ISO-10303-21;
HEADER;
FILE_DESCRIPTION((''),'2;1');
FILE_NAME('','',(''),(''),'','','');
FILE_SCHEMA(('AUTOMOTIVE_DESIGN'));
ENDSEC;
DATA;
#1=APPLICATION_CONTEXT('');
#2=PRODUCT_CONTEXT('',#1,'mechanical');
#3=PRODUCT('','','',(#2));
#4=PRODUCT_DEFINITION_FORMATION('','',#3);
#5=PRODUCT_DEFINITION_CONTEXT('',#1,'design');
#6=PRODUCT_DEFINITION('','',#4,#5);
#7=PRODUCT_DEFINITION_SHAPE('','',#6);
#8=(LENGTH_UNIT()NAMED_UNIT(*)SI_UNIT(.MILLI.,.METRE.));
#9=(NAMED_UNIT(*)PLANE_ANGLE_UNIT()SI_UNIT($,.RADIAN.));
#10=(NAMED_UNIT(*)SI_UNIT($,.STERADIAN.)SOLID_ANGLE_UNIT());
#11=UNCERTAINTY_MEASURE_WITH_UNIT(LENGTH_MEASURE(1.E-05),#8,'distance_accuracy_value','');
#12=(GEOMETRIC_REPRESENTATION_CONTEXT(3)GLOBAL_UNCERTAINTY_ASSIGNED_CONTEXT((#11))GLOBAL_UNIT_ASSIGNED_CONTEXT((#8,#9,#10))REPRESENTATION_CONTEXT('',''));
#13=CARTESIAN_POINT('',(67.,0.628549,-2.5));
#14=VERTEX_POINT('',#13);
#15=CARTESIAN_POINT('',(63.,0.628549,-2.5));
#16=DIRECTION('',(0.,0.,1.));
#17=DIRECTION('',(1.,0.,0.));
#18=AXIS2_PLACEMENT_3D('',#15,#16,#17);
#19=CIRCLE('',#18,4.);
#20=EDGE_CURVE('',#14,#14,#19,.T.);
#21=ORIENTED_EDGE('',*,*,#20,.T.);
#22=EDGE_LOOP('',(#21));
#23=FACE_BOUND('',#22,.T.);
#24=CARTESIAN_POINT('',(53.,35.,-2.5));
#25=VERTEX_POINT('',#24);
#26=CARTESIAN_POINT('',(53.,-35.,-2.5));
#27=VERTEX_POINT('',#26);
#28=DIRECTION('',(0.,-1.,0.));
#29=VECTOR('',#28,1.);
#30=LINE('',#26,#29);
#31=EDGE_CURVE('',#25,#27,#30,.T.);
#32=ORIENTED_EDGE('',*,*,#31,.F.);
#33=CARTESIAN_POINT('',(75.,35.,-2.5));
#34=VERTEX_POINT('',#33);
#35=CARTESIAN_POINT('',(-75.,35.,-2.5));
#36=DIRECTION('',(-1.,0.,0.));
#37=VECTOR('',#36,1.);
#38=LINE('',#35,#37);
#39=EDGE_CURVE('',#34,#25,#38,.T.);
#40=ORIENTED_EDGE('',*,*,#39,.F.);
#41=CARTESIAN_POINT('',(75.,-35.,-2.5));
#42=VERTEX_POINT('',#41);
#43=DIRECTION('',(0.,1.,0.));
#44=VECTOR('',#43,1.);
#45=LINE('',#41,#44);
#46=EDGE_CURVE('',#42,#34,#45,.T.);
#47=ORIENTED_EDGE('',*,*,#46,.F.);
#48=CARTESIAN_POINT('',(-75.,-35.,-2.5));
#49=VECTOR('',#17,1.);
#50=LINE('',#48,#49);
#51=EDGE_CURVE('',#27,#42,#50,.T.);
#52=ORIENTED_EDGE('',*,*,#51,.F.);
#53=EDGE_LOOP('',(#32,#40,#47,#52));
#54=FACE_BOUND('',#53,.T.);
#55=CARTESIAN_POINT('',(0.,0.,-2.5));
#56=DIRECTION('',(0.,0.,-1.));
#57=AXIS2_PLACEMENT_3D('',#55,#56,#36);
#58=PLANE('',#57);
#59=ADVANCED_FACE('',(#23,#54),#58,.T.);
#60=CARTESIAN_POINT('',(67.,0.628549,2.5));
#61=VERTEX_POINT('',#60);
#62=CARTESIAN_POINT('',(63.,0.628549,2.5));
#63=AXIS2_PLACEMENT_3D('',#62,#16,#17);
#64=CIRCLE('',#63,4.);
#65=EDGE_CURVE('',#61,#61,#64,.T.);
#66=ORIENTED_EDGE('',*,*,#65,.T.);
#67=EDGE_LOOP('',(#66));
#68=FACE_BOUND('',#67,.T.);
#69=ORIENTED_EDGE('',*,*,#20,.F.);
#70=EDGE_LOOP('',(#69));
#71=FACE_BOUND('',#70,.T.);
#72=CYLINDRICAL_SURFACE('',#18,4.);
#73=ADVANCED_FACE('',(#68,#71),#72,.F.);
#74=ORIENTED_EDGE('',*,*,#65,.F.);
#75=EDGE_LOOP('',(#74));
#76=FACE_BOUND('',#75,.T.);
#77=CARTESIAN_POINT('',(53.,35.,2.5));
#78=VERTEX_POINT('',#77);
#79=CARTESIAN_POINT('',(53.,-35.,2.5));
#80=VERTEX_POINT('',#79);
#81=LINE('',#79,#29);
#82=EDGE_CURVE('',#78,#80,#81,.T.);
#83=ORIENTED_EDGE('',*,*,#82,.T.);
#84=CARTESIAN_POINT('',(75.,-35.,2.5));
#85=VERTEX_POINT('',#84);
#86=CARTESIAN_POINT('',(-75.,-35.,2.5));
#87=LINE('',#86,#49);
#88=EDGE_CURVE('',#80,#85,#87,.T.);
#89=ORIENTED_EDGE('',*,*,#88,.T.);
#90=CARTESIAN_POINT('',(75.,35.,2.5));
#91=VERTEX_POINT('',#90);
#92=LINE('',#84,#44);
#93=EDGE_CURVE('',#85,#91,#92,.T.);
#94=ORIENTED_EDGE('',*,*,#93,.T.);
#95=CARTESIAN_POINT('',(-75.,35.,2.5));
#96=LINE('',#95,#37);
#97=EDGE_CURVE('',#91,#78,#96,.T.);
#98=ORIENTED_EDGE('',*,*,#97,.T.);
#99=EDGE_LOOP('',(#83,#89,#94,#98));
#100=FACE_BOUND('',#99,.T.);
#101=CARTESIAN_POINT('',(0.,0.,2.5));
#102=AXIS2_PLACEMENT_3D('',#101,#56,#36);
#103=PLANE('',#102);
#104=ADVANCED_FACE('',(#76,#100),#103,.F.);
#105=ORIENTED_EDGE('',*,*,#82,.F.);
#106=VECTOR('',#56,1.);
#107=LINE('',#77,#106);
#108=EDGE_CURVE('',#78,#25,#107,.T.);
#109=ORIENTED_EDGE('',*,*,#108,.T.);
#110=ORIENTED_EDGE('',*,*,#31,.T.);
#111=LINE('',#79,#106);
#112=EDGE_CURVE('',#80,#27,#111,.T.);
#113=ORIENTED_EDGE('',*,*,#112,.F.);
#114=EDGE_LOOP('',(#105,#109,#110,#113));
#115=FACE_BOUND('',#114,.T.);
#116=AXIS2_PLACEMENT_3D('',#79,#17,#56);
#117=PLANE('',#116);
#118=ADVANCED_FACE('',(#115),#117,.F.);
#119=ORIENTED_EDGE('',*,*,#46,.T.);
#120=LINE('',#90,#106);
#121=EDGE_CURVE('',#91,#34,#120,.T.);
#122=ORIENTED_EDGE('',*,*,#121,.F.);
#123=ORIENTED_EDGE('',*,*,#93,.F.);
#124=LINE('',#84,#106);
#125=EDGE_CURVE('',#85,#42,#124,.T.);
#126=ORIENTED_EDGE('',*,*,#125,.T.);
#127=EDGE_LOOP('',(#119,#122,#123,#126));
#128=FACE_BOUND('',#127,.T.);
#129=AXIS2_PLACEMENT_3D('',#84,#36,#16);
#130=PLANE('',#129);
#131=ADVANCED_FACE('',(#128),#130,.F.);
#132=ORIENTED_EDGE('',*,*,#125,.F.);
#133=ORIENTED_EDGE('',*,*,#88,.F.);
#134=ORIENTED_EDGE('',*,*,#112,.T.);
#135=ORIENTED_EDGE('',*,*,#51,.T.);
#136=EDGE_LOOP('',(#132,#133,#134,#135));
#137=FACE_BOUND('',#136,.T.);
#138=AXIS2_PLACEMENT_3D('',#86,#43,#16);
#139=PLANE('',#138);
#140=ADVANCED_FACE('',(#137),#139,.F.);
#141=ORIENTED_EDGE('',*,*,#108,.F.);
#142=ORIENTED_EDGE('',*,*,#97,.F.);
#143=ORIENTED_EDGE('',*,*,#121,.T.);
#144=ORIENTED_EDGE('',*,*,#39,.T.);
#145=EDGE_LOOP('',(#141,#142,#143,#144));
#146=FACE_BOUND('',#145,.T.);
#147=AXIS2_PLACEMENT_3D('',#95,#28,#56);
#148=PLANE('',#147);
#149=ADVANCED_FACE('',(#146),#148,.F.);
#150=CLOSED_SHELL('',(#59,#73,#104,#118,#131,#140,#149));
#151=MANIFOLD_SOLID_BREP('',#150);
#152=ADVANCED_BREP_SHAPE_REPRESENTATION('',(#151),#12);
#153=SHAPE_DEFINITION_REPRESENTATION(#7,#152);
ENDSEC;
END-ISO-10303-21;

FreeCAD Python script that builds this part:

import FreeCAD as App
import Part
import Sketcher

doc = App.newDocument("Part")
params = doc.addObject("Spreadsheet::Sheet", "Params")
for row, (alias, value) in enumerate([
    ("sketch1_width", "150 mm"),
    ("sketch1_height", "70 mm"),
    ("pad1_length", "5 mm"),
    ("sketch2_diameter", "8 mm"),
    ("sketch3_width", "120 mm"),
    ("sketch3_height", "70 mm"),
    ("sketch4_width", "8 mm"),
    ("sketch4_height", "70 mm"),
], start=1):
    params.set(f"A{row}", alias)
    params.set(f"B{row}", "=" + value)
    params.setAlias(f"B{row}", alias)

body = doc.addObject("PartDesign::Body", "Body")

# Sketch on XY plane
sketch1 = body.newObject("Sketcher::SketchObject", "Sketch")
sketch1.AttachmentSupport = (doc.getObject("XY_Plane"), [""])
sketch1.MapMode = "FlatFace"
sketch1.addGeometry([
    Part.LineSegment(App.Vector(-75, 35, 0), App.Vector(-75, -35, 0)),
    Part.LineSegment(App.Vector(-75, -35, 0), App.Vector(75, -35, 0)),
    Part.LineSegment(App.Vector(75, -35, 0), App.Vector(75, 35, 0)),
    Part.LineSegment(App.Vector(75, 35, 0), App.Vector(-75, 35, 0)),
], False)
sketch1.addConstraint([
    Sketcher.Constraint("Coincident", 0, 2, 1, 1),
    Sketcher.Constraint("Coincident", 1, 2, 2, 1),
    Sketcher.Constraint("Coincident", 2, 2, 3, 1),
    Sketcher.Constraint("Coincident", 3, 2, 0, 1),
    Sketcher.Constraint("Vertical", 0),
    Sketcher.Constraint("Horizontal", 1),
    Sketcher.Constraint("Vertical", 2),
    Sketcher.Constraint("Horizontal", 3),
    Sketcher.Constraint("Symmetric", 0, 2, 2, 2, -1, 1),
    Sketcher.Constraint("DistanceX", 1, 1, 1, 2, 150.0),
    Sketcher.Constraint("DistanceY", 0, 2, 0, 1, 70.0),
])
sketch1.setExpression("Constraints[9]", "Params.sketch1_width")
sketch1.setExpression("Constraints[10]", "Params.sketch1_height")
pad1 = body.newObject("PartDesign::Pad", "Pad")
pad1.Profile = sketch1
pad1.setExpression("Length", "Params.pad1_length")
pad1.Midplane = True

# Sketch on XY plane
sketch2 = body.newObject("Sketcher::SketchObject", "Sketch001")
sketch2.AttachmentSupport = (doc.getObject("XY_Plane"), [""])
sketch2.MapMode = "FlatFace"
sketch2.AttachmentOffset = App.Placement(App.Vector(0, 0, 2.5), App.Rotation())
sketch2.addGeometry([
    Part.Circle(App.Vector(63, 0.628549, 0), App.Vector(0, 0, 1), 4),
    Part.Circle(App.Vector(29.001496, 0.309584, 0), App.Vector(0, 0, 1), 4),
    Part.Circle(App.Vector(-42.995335, -0.365872, 0), App.Vector(0, 0, 1), 4),
    Part.Circle(App.Vector(-3.997052, 0, 0), App.Vector(0, 0, 1), 4),
], False)
sketch2.addConstraint([
    Sketcher.Constraint("Equal", 0, 1),
    Sketcher.Constraint("Equal", 1, 2),
    Sketcher.Constraint("Equal", 2, 3),
    Sketcher.Constraint("PointOnObject", 3, 3, -1),
    Sketcher.Constraint("Diameter", 0, 8.0),
    Sketcher.Constraint("DistanceX", -1, 1, 0, 3, 63.0),
    Sketcher.Constraint("DistanceY", -1, 1, 0, 3, 0.628549),
    Sketcher.Constraint("DistanceY", 2, 3, -1, 1, 0.365872),
    Sketcher.Constraint("DistanceX", 3, 3, -1, 1, 3.997052),
    Sketcher.Constraint("DistanceX", 2, 3, 1, 3, 71.996832),
    Sketcher.Constraint("DistanceX", -1, 1, 1, 3, 29.001496),
    Sketcher.Constraint("DistanceY", -1, 1, 1, 3, 0.309584),
])
sketch2.setExpression("Constraints[4]", "Params.sketch2_diameter")
pocket1 = body.newObject("PartDesign::Pocket", "Pocket")
pocket1.Profile = sketch2
pocket1.Type = "ThroughAll"

# Sketch on XY plane
sketch3 = body.newObject("Sketcher::SketchObject", "Sketch002")
sketch3.AttachmentSupport = (doc.getObject("XY_Plane"), [""])
sketch3.MapMode = "FlatFace"
sketch3.AttachmentOffset = App.Placement(App.Vector(0, 0, -2.5), App.Rotation())
sketch3.addGeometry([
    Part.LineSegment(App.Vector(45, 35, 0), App.Vector(45, -35, 0)),
    Part.LineSegment(App.Vector(45, -35, 0), App.Vector(-75, -35, 0)),
    Part.LineSegment(App.Vector(-75, -35, 0), App.Vector(-75, 35, 0)),
    Part.LineSegment(App.Vector(-75, 35, 0), App.Vector(45, 35, 0)),
], False)
sketch3.addConstraint([
    Sketcher.Constraint("Coincident", 0, 2, 1, 1),
    Sketcher.Constraint("Coincident", 1, 2, 2, 1),
    Sketcher.Constraint("Coincident", 2, 2, 3, 1),
    Sketcher.Constraint("Coincident", 3, 2, 0, 1),
    Sketcher.Constraint("Vertical", 0),
    Sketcher.Constraint("Horizontal", 1),
    Sketcher.Constraint("Vertical", 2),
    Sketcher.Constraint("Horizontal", 3),
    Sketcher.Constraint("DistanceX", 1, 2, 1, 1, 120.0),
    Sketcher.Constraint("DistanceY", 0, 2, 0, 1, 70.0),
    Sketcher.Constraint("DistanceX", -1, 1, 0, 2, 45.0),
    Sketcher.Constraint("DistanceY", 0, 2, -1, 1, 35.0),
])
sketch3.setExpression("Constraints[8]", "Params.sketch3_width")
sketch3.setExpression("Constraints[9]", "Params.sketch3_height")
pocket2 = body.newObject("PartDesign::Pocket", "Pocket001")
pocket2.Profile = sketch3
pocket2.Type = "ThroughAll"
pocket2.Reversed = True

# Sketch on XY plane
sketch4 = body.newObject("Sketcher::SketchObject", "Sketch003")
sketch4.AttachmentSupport = (doc.getObject("XY_Plane"), [""])
sketch4.MapMode = "FlatFace"
sketch4.AttachmentOffset = App.Placement(App.Vector(0, 0, -2.5), App.Rotation())
sketch4.addGeometry([
    Part.LineSegment(App.Vector(53, 35, 0), App.Vector(53, -35, 0)),
    Part.LineSegment(App.Vector(53, -35, 0), App.Vector(45, -35, 0)),
    Part.LineSegment(App.Vector(45, -35, 0), App.Vector(45, 35, 0)),
    Part.LineSegment(App.Vector(45, 35, 0), App.Vector(53, 35, 0)),
], False)
sketch4.addConstraint([
    Sketcher.Constraint("Coincident", 0, 2, 1, 1),
    Sketcher.Constraint("Coincident", 1, 2, 2, 1),
    Sketcher.Constraint("Coincident", 2, 2, 3, 1),
    Sketcher.Constraint("Coincident", 3, 2, 0, 1),
    Sketcher.Constraint("Vertical", 0),
    Sketcher.Constraint("Horizontal", 1),
    Sketcher.Constraint("Vertical", 2),
    Sketcher.Constraint("Horizontal", 3),
    Sketcher.Constraint("DistanceX", 1, 2, 1, 1, 8.0),
    Sketcher.Constraint("DistanceY", 0, 2, 0, 1, 70.0),
    Sketcher.Constraint("DistanceX", -1, 1, 0, 2, 53.0),
    Sketcher.Constraint("DistanceY", 0, 2, -1, 1, 35.0),
])
sketch4.setExpression("Constraints[8]", "Params.sketch4_width")
sketch4.setExpression("Constraints[9]", "Params.sketch4_height")
pocket3 = body.newObject("PartDesign::Pocket", "Pocket002")
pocket3.Profile = sketch4
pocket3.Type = "ThroughAll"
pocket3.Reversed = True

doc.recompute()
